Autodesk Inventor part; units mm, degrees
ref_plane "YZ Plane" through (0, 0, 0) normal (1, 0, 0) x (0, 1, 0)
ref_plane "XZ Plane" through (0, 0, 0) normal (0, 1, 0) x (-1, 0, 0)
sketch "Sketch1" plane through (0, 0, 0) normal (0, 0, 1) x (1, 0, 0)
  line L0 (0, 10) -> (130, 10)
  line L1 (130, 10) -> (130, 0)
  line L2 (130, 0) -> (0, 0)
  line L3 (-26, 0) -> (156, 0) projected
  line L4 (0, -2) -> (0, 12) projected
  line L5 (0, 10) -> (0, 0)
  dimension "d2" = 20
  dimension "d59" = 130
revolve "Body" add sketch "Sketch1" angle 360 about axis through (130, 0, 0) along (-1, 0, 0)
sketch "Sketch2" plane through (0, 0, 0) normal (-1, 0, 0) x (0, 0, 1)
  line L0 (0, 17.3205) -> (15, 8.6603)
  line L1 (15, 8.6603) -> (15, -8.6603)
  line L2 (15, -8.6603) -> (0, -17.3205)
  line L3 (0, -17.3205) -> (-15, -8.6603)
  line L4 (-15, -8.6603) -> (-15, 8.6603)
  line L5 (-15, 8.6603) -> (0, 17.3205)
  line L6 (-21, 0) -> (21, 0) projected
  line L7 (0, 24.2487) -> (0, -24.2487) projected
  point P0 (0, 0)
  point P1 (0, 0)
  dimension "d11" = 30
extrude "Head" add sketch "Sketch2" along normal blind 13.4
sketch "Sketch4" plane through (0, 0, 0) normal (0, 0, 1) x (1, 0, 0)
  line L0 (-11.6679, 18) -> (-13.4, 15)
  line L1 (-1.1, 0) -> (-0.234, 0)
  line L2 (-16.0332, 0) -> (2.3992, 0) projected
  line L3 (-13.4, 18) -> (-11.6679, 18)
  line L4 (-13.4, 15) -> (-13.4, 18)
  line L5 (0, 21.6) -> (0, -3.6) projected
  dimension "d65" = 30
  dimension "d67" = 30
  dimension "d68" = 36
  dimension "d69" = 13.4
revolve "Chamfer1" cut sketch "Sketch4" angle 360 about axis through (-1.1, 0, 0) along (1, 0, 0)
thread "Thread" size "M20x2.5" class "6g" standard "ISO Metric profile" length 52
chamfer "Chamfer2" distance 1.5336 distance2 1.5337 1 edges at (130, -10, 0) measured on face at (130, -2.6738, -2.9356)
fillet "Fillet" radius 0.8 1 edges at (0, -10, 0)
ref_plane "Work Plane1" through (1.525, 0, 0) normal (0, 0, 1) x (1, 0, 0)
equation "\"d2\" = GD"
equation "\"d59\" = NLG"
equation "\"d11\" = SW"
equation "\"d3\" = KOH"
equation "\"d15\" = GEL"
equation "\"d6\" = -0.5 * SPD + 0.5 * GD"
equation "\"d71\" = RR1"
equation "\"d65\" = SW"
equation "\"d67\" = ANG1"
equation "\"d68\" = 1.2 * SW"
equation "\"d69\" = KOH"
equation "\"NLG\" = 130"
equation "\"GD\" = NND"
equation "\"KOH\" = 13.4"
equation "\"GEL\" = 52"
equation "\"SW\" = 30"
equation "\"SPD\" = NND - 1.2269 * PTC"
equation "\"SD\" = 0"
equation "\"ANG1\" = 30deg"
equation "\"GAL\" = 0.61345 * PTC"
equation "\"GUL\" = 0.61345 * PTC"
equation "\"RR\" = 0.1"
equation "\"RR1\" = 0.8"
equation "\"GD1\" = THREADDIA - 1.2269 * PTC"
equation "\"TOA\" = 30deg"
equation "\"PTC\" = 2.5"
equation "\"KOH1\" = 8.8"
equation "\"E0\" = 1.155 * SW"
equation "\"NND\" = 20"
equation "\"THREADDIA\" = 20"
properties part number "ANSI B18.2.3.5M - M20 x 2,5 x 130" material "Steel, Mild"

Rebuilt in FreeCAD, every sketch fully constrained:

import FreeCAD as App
import Part
import Sketcher
Q = App.Units.Quantity


def edges_at(feature, points):
    """Names of the edges that pass closest to the given points."""
    edges = feature.Shape.Edges
    near = lambda p: min(range(len(edges)), key=lambda i: edges[i].distToShape(Part.Vertex(*p))[0])
    return sorted({f"Edge{near(p) + 1}" for p in points})

doc = App.newDocument("Part")
body = doc.addObject("PartDesign::Body", "Body")

sketch1 = body.newObject("Sketcher::SketchObject", "Sketch")
sketch1.AttachmentSupport = (doc.getObject("XY_Plane"), [""])
sketch1.MapMode = "FlatFace"
sketch1.addGeometry([
    Part.LineSegment(App.Vector(130, 10, 0), App.Vector(0, 10, 0)),
    Part.LineSegment(App.Vector(0, 10, 0), App.Vector(0, 0, 0)),
    Part.LineSegment(App.Vector(0, 0, 0), App.Vector(130, 0, 0)),
    Part.LineSegment(App.Vector(130, 0, 0), App.Vector(130, 10, 0)),
], False)
sketch1.addConstraint([
    Sketcher.Constraint("Coincident", 0, 2, 1, 1),
    Sketcher.Constraint("Coincident", 1, 2, 2, 1),
    Sketcher.Constraint("Coincident", 2, 2, 3, 1),
    Sketcher.Constraint("Coincident", 3, 2, 0, 1),
    Sketcher.Constraint("Horizontal", 0),
    Sketcher.Constraint("Vertical", 1),
    Sketcher.Constraint("Horizontal", 2),
    Sketcher.Constraint("Vertical", 3),
    Sketcher.Constraint("Coincident", 1, 2, -1, 1),
    Sketcher.Constraint("DistanceX", 0, 2, 0, 1, 130.0),
    Sketcher.Constraint("DistanceY", 1, 2, 1, 1, 10.0),
])
revolution = body.newObject("PartDesign::Revolution", "Revolution")
revolution.Profile = sketch1
revolution.ReferenceAxis = (sketch1, ["H_Axis"])
revolution.Angle = 360

sketch2 = body.newObject("Sketcher::SketchObject", "Sketch001")
sketch2.AttachmentSupport = (doc.getObject("YZ_Plane"), [""])
sketch2.MapMode = "FlatFace"
sketch2.addGeometry([
    Part.LineSegment(App.Vector(8.6603, -15, 0), App.Vector(-8.6603, -15, 0)),
    Part.LineSegment(App.Vector(-8.6603, -15, 0), App.Vector(-17.3205, 0, 0)),
    Part.LineSegment(App.Vector(-17.3205, 0, 0), App.Vector(-8.6603, 15, 0)),
    Part.LineSegment(App.Vector(-8.6603, 15, 0), App.Vector(8.6603, 15, 0)),
    Part.LineSegment(App.Vector(8.6603, 15, 0), App.Vector(17.3205, 0, 0)),
    Part.LineSegment(App.Vector(17.3205, 0, 0), App.Vector(8.6603, -15, 0)),
], False)
sketch2.addConstraint([
    Sketcher.Constraint("Coincident", 0, 2, 1, 1),
    Sketcher.Constraint("Coincident", 1, 2, 2, 1),
    Sketcher.Constraint("Coincident", 2, 2, 3, 1),
    Sketcher.Constraint("Coincident", 3, 2, 4, 1),
    Sketcher.Constraint("Coincident", 4, 2, 5, 1),
    Sketcher.Constraint("Coincident", 5, 2, 0, 1),
    Sketcher.Constraint("Horizontal", 0),
    Sketcher.Constraint("Horizontal", 3),
    Sketcher.Constraint("Symmetric", 0, 2, 3, 2, -1, 1),
    Sketcher.Constraint("Symmetric", 1, 2, 4, 2, -1, 1),
    Sketcher.Constraint("PointOnObject", 1, 2, -1),
    Sketcher.Constraint("Parallel", 2, 5),
    Sketcher.Constraint("Vertical", 0, 2, 2, 2),
    Sketcher.Constraint("DistanceY", 0, 2, 2, 2, 30.0),
    Sketcher.Constraint("Angle", 1, Q("119.9998 deg")),
    Sketcher.Constraint("DistanceX", 0, 2, 0, 1, 17.3206),
])
pad1 = body.newObject("PartDesign::Pad", "Pad")
pad1.Profile = sketch2
pad1.Length = 13.4
pad1.Reversed = True

sketch3 = body.newObject("Sketcher::SketchObject", "Sketch002")
sketch3.AttachmentSupport = (doc.getObject("XY_Plane"), [""])
sketch3.MapMode = "FlatFace"
sketch3.addGeometry([
    Part.LineSegment(App.Vector(-13.4, 15, 0), App.Vector(-11.6679, 18, 0)),
    Part.LineSegment(App.Vector(-11.6679, 18, 0), App.Vector(-13.4, 18, 0)),
    Part.LineSegment(App.Vector(-13.4, 18, 0), App.Vector(-13.4, 15, 0)),
], False)
sketch3.addConstraint([
    Sketcher.Constraint("Coincident", 0, 2, 1, 1),
    Sketcher.Constraint("Coincident", 1, 2, 2, 1),
    Sketcher.Constraint("Coincident", 2, 2, 0, 1),
    Sketcher.Constraint("Horizontal", 1),
    Sketcher.Constraint("Vertical", 2),
    Sketcher.Constraint("DistanceX", 1, 2, -1, 1, 13.4),
    Sketcher.Constraint("DistanceY", 2, 2, 2, 1, 3.0),
    Sketcher.Constraint("Angle", 0, Q("59.9993 deg")),
    Sketcher.Constraint("DistanceY", -1, 1, 0, 2, 18.0),
])
groove = body.newObject("PartDesign::Groove", "Groove")
groove.Profile = sketch3
groove.ReferenceAxis = (sketch3, ["H_Axis"])
groove.Angle = 360
doc.recompute()

chamfer = body.newObject("PartDesign::Chamfer", "Chamfer")
chamfer.Base = (groove, edges_at(groove, [(130, -10, 0)]))
chamfer.ChamferType = "Two distances"
chamfer.Size = 1.5336
chamfer.Size2 = 1.5337
doc.recompute()

fillet = body.newObject("PartDesign::Fillet", "Fillet")
fillet.Base = (chamfer, edges_at(chamfer, [(0, -10, 0)]))
fillet.Radius = 0.8

doc.recompute()
